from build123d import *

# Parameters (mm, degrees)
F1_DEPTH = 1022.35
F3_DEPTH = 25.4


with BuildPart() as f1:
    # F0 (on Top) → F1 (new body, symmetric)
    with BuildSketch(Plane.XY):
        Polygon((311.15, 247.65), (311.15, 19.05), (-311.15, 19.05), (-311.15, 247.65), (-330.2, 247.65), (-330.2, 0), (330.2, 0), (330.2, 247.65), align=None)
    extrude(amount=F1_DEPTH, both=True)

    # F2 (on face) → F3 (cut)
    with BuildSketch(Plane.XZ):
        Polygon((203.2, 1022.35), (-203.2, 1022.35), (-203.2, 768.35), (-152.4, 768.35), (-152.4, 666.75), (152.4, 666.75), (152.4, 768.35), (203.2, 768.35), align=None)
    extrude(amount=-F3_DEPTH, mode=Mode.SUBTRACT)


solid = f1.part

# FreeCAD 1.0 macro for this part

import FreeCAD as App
import Part
import Sketcher
Q = App.Units.Quantity

doc = App.newDocument("Part")
body = doc.addObject("PartDesign::Body", "Body")

# Sketch on XY plane
sketch1 = body.newObject("Sketcher::SketchObject", "Sketch")
sketch1.AttachmentSupport = (doc.getObject("XY_Plane"), [""])
sketch1.MapMode = "FlatFace"
sketch1.addGeometry(Part.LineSegment(App.Vector(311.15, 247.65, 0), App.Vector(311.15, 19.05, 0)), False)
sketch1.addGeometry(Part.LineSegment(App.Vector(311.15, 19.05, 0), App.Vector(-311.15, 19.05, 0)), False)
sketch1.addGeometry(Part.LineSegment(App.Vector(-311.15, 19.05, 0), App.Vector(-311.15, 247.65, 0)), False)
sketch1.addGeometry(Part.LineSegment(App.Vector(-311.15, 247.65, 0), App.Vector(-330.2, 247.65, 0)), False)
sketch1.addGeometry(Part.LineSegment(App.Vector(-330.2, 247.65, 0), App.Vector(-330.2, 0, 0)), False)
sketch1.addGeometry(Part.LineSegment(App.Vector(-330.2, 0, 0), App.Vector(330.2, 0, 0)), False)
sketch1.addGeometry(Part.LineSegment(App.Vector(330.2, 0, 0), App.Vector(330.2, 247.65, 0)), False)
sketch1.addGeometry(Part.LineSegment(App.Vector(330.2, 247.65, 0), App.Vector(311.15, 247.65, 0)), False)
sketch1.addConstraint(Sketcher.Constraint("Coincident", 0, 2, 1, 1))
sketch1.addConstraint(Sketcher.Constraint("Coincident", 1, 2, 2, 1))
sketch1.addConstraint(Sketcher.Constraint("Coincident", 2, 2, 3, 1))
sketch1.addConstraint(Sketcher.Constraint("Coincident", 3, 2, 4, 1))
sketch1.addConstraint(Sketcher.Constraint("Coincident", 4, 2, 5, 1))
sketch1.addConstraint(Sketcher.Constraint("Coincident", 5, 2, 6, 1))
sketch1.addConstraint(Sketcher.Constraint("Coincident", 6, 2, 7, 1))
sketch1.addConstraint(Sketcher.Constraint("Coincident", 7, 2, 0, 1))
sketch1.addConstraint(Sketcher.Constraint("Vertical", 0))
sketch1.addConstraint(Sketcher.Constraint("Horizontal", 1))
sketch1.addConstraint(Sketcher.Constraint("Vertical", 2))
sketch1.addConstraint(Sketcher.Constraint("Horizontal", 3))
sketch1.addConstraint(Sketcher.Constraint("Vertical", 4))
sketch1.addConstraint(Sketcher.Constraint("Horizontal", 5))
sketch1.addConstraint(Sketcher.Constraint("Vertical", 6))
sketch1.addConstraint(Sketcher.Constraint("Horizontal", 7))
sketch1.addConstraint(Sketcher.Constraint("Symmetric", 4, 2, 5, 2, -1, 1))
sketch1.addConstraint(Sketcher.Constraint("Symmetric", 2, 2, 7, 2, -2))
sketch1.addConstraint(Sketcher.Constraint("DistanceX", 5, 1, 5, 2, Q("26 in")))
sketch1.addConstraint(Sketcher.Constraint("DistanceY", 0, 2, 0, 1, Q("9 in")))
sketch1.addConstraint(Sketcher.Constraint("DistanceX", 1, 2, 1, 1, Q("24.5 in")))
sketch1.addConstraint(Sketcher.Constraint("DistanceY", 4, 2, 4, 1, Q("9.75 in")))
pad1 = body.newObject("PartDesign::Pad", "Pad")
pad1.Profile = sketch1
pad1.Length = Q("80.5 in")
pad1.Midplane = True

# Sketch on XZ plane
sketch2 = body.newObject("Sketcher::SketchObject", "Sketch001")
sketch2.AttachmentSupport = (doc.getObject("XZ_Plane"), [""])
sketch2.MapMode = "FlatFace"
sketch2.addGeometry(Part.LineSegment(App.Vector(203.2, 1022.35, 0), App.Vector(-203.2, 1022.35, 0)), False)
sketch2.addGeometry(Part.LineSegment(App.Vector(-203.2, 1022.35, 0), App.Vector(-203.2, 768.35, 0)), False)
sketch2.addGeometry(Part.LineSegment(App.Vector(-203.2, 768.35, 0), App.Vector(-152.4, 768.35, 0)), False)
sketch2.addGeometry(Part.LineSegment(App.Vector(-152.4, 768.35, 0), App.Vector(-152.4, 666.75, 0)), False)
sketch2.addGeometry(Part.LineSegment(App.Vector(-152.4, 666.75, 0), App.Vector(152.4, 666.75, 0)), False)
sketch2.addGeometry(Part.LineSegment(App.Vector(152.4, 666.75, 0), App.Vector(152.4, 768.35, 0)), False)
sketch2.addGeometry(Part.LineSegment(App.Vector(152.4, 768.35, 0), App.Vector(203.2, 768.35, 0)), False)
sketch2.addGeometry(Part.LineSegment(App.Vector(203.2, 768.35, 0), App.Vector(203.2, 1022.35, 0)), False)
sketch2.addConstraint(Sketcher.Constraint("Coincident", 0, 2, 1, 1))
sketch2.addConstraint(Sketcher.Constraint("Coincident", 1, 2, 2, 1))
sketch2.addConstraint(Sketcher.Constraint("Coincident", 2, 2, 3, 1))
sketch2.addConstraint(Sketcher.Constraint("Coincident", 3, 2, 4, 1))
sketch2.addConstraint(Sketcher.Constraint("Coincident", 4, 2, 5, 1))
sketch2.addConstraint(Sketcher.Constraint("Coincident", 5, 2, 6, 1))
sketch2.addConstraint(Sketcher.Constraint("Coincident", 6, 2, 7, 1))
sketch2.addConstraint(Sketcher.Constraint("Coincident", 7, 2, 0, 1))
sketch2.addConstraint(Sketcher.Constraint("Horizontal", 0))
sketch2.addConstraint(Sketcher.Constraint("Vertical", 1))
sketch2.addConstraint(Sketcher.Constraint("Horizontal", 2))
sketch2.addConstraint(Sketcher.Constraint("Vertical", 3))
sketch2.addConstraint(Sketcher.Constraint("Horizontal", 4))
sketch2.addConstraint(Sketcher.Constraint("Vertical", 5))
sketch2.addConstraint(Sketcher.Constraint("Horizontal", 6))
sketch2.addConstraint(Sketcher.Constraint("Vertical", 7))
sketch2.addConstraint(Sketcher.Constraint("Symmetric", 2, 2, 5, 2, -2))
sketch2.addConstraint(Sketcher.Constraint("Equal", 2, 6))
sketch2.addConstraint(Sketcher.Constraint("DistanceX", 0, 2, 0, 1, Q("16 in")))
sketch2.addConstraint(Sketcher.Constraint("DistanceX", 2, 1, 2, 2, Q("2 in")))
sketch2.addConstraint(Sketcher.Constraint("DistanceY", 1, 2, 1, 1, Q("10 in")))
sketch2.addConstraint(Sketcher.Constraint("DistanceY", 3, 2, 3, 1, Q("4 in")))
sketch2.addConstraint(Sketcher.Constraint("DistanceY", -1, 1, 0, 2, Q("40.25 in")))
pocket1 = body.newObject("PartDesign::Pocket", "Pocket")
pocket1.Profile = sketch2
pocket1.Length = Q("1 in")

doc.recompute()
